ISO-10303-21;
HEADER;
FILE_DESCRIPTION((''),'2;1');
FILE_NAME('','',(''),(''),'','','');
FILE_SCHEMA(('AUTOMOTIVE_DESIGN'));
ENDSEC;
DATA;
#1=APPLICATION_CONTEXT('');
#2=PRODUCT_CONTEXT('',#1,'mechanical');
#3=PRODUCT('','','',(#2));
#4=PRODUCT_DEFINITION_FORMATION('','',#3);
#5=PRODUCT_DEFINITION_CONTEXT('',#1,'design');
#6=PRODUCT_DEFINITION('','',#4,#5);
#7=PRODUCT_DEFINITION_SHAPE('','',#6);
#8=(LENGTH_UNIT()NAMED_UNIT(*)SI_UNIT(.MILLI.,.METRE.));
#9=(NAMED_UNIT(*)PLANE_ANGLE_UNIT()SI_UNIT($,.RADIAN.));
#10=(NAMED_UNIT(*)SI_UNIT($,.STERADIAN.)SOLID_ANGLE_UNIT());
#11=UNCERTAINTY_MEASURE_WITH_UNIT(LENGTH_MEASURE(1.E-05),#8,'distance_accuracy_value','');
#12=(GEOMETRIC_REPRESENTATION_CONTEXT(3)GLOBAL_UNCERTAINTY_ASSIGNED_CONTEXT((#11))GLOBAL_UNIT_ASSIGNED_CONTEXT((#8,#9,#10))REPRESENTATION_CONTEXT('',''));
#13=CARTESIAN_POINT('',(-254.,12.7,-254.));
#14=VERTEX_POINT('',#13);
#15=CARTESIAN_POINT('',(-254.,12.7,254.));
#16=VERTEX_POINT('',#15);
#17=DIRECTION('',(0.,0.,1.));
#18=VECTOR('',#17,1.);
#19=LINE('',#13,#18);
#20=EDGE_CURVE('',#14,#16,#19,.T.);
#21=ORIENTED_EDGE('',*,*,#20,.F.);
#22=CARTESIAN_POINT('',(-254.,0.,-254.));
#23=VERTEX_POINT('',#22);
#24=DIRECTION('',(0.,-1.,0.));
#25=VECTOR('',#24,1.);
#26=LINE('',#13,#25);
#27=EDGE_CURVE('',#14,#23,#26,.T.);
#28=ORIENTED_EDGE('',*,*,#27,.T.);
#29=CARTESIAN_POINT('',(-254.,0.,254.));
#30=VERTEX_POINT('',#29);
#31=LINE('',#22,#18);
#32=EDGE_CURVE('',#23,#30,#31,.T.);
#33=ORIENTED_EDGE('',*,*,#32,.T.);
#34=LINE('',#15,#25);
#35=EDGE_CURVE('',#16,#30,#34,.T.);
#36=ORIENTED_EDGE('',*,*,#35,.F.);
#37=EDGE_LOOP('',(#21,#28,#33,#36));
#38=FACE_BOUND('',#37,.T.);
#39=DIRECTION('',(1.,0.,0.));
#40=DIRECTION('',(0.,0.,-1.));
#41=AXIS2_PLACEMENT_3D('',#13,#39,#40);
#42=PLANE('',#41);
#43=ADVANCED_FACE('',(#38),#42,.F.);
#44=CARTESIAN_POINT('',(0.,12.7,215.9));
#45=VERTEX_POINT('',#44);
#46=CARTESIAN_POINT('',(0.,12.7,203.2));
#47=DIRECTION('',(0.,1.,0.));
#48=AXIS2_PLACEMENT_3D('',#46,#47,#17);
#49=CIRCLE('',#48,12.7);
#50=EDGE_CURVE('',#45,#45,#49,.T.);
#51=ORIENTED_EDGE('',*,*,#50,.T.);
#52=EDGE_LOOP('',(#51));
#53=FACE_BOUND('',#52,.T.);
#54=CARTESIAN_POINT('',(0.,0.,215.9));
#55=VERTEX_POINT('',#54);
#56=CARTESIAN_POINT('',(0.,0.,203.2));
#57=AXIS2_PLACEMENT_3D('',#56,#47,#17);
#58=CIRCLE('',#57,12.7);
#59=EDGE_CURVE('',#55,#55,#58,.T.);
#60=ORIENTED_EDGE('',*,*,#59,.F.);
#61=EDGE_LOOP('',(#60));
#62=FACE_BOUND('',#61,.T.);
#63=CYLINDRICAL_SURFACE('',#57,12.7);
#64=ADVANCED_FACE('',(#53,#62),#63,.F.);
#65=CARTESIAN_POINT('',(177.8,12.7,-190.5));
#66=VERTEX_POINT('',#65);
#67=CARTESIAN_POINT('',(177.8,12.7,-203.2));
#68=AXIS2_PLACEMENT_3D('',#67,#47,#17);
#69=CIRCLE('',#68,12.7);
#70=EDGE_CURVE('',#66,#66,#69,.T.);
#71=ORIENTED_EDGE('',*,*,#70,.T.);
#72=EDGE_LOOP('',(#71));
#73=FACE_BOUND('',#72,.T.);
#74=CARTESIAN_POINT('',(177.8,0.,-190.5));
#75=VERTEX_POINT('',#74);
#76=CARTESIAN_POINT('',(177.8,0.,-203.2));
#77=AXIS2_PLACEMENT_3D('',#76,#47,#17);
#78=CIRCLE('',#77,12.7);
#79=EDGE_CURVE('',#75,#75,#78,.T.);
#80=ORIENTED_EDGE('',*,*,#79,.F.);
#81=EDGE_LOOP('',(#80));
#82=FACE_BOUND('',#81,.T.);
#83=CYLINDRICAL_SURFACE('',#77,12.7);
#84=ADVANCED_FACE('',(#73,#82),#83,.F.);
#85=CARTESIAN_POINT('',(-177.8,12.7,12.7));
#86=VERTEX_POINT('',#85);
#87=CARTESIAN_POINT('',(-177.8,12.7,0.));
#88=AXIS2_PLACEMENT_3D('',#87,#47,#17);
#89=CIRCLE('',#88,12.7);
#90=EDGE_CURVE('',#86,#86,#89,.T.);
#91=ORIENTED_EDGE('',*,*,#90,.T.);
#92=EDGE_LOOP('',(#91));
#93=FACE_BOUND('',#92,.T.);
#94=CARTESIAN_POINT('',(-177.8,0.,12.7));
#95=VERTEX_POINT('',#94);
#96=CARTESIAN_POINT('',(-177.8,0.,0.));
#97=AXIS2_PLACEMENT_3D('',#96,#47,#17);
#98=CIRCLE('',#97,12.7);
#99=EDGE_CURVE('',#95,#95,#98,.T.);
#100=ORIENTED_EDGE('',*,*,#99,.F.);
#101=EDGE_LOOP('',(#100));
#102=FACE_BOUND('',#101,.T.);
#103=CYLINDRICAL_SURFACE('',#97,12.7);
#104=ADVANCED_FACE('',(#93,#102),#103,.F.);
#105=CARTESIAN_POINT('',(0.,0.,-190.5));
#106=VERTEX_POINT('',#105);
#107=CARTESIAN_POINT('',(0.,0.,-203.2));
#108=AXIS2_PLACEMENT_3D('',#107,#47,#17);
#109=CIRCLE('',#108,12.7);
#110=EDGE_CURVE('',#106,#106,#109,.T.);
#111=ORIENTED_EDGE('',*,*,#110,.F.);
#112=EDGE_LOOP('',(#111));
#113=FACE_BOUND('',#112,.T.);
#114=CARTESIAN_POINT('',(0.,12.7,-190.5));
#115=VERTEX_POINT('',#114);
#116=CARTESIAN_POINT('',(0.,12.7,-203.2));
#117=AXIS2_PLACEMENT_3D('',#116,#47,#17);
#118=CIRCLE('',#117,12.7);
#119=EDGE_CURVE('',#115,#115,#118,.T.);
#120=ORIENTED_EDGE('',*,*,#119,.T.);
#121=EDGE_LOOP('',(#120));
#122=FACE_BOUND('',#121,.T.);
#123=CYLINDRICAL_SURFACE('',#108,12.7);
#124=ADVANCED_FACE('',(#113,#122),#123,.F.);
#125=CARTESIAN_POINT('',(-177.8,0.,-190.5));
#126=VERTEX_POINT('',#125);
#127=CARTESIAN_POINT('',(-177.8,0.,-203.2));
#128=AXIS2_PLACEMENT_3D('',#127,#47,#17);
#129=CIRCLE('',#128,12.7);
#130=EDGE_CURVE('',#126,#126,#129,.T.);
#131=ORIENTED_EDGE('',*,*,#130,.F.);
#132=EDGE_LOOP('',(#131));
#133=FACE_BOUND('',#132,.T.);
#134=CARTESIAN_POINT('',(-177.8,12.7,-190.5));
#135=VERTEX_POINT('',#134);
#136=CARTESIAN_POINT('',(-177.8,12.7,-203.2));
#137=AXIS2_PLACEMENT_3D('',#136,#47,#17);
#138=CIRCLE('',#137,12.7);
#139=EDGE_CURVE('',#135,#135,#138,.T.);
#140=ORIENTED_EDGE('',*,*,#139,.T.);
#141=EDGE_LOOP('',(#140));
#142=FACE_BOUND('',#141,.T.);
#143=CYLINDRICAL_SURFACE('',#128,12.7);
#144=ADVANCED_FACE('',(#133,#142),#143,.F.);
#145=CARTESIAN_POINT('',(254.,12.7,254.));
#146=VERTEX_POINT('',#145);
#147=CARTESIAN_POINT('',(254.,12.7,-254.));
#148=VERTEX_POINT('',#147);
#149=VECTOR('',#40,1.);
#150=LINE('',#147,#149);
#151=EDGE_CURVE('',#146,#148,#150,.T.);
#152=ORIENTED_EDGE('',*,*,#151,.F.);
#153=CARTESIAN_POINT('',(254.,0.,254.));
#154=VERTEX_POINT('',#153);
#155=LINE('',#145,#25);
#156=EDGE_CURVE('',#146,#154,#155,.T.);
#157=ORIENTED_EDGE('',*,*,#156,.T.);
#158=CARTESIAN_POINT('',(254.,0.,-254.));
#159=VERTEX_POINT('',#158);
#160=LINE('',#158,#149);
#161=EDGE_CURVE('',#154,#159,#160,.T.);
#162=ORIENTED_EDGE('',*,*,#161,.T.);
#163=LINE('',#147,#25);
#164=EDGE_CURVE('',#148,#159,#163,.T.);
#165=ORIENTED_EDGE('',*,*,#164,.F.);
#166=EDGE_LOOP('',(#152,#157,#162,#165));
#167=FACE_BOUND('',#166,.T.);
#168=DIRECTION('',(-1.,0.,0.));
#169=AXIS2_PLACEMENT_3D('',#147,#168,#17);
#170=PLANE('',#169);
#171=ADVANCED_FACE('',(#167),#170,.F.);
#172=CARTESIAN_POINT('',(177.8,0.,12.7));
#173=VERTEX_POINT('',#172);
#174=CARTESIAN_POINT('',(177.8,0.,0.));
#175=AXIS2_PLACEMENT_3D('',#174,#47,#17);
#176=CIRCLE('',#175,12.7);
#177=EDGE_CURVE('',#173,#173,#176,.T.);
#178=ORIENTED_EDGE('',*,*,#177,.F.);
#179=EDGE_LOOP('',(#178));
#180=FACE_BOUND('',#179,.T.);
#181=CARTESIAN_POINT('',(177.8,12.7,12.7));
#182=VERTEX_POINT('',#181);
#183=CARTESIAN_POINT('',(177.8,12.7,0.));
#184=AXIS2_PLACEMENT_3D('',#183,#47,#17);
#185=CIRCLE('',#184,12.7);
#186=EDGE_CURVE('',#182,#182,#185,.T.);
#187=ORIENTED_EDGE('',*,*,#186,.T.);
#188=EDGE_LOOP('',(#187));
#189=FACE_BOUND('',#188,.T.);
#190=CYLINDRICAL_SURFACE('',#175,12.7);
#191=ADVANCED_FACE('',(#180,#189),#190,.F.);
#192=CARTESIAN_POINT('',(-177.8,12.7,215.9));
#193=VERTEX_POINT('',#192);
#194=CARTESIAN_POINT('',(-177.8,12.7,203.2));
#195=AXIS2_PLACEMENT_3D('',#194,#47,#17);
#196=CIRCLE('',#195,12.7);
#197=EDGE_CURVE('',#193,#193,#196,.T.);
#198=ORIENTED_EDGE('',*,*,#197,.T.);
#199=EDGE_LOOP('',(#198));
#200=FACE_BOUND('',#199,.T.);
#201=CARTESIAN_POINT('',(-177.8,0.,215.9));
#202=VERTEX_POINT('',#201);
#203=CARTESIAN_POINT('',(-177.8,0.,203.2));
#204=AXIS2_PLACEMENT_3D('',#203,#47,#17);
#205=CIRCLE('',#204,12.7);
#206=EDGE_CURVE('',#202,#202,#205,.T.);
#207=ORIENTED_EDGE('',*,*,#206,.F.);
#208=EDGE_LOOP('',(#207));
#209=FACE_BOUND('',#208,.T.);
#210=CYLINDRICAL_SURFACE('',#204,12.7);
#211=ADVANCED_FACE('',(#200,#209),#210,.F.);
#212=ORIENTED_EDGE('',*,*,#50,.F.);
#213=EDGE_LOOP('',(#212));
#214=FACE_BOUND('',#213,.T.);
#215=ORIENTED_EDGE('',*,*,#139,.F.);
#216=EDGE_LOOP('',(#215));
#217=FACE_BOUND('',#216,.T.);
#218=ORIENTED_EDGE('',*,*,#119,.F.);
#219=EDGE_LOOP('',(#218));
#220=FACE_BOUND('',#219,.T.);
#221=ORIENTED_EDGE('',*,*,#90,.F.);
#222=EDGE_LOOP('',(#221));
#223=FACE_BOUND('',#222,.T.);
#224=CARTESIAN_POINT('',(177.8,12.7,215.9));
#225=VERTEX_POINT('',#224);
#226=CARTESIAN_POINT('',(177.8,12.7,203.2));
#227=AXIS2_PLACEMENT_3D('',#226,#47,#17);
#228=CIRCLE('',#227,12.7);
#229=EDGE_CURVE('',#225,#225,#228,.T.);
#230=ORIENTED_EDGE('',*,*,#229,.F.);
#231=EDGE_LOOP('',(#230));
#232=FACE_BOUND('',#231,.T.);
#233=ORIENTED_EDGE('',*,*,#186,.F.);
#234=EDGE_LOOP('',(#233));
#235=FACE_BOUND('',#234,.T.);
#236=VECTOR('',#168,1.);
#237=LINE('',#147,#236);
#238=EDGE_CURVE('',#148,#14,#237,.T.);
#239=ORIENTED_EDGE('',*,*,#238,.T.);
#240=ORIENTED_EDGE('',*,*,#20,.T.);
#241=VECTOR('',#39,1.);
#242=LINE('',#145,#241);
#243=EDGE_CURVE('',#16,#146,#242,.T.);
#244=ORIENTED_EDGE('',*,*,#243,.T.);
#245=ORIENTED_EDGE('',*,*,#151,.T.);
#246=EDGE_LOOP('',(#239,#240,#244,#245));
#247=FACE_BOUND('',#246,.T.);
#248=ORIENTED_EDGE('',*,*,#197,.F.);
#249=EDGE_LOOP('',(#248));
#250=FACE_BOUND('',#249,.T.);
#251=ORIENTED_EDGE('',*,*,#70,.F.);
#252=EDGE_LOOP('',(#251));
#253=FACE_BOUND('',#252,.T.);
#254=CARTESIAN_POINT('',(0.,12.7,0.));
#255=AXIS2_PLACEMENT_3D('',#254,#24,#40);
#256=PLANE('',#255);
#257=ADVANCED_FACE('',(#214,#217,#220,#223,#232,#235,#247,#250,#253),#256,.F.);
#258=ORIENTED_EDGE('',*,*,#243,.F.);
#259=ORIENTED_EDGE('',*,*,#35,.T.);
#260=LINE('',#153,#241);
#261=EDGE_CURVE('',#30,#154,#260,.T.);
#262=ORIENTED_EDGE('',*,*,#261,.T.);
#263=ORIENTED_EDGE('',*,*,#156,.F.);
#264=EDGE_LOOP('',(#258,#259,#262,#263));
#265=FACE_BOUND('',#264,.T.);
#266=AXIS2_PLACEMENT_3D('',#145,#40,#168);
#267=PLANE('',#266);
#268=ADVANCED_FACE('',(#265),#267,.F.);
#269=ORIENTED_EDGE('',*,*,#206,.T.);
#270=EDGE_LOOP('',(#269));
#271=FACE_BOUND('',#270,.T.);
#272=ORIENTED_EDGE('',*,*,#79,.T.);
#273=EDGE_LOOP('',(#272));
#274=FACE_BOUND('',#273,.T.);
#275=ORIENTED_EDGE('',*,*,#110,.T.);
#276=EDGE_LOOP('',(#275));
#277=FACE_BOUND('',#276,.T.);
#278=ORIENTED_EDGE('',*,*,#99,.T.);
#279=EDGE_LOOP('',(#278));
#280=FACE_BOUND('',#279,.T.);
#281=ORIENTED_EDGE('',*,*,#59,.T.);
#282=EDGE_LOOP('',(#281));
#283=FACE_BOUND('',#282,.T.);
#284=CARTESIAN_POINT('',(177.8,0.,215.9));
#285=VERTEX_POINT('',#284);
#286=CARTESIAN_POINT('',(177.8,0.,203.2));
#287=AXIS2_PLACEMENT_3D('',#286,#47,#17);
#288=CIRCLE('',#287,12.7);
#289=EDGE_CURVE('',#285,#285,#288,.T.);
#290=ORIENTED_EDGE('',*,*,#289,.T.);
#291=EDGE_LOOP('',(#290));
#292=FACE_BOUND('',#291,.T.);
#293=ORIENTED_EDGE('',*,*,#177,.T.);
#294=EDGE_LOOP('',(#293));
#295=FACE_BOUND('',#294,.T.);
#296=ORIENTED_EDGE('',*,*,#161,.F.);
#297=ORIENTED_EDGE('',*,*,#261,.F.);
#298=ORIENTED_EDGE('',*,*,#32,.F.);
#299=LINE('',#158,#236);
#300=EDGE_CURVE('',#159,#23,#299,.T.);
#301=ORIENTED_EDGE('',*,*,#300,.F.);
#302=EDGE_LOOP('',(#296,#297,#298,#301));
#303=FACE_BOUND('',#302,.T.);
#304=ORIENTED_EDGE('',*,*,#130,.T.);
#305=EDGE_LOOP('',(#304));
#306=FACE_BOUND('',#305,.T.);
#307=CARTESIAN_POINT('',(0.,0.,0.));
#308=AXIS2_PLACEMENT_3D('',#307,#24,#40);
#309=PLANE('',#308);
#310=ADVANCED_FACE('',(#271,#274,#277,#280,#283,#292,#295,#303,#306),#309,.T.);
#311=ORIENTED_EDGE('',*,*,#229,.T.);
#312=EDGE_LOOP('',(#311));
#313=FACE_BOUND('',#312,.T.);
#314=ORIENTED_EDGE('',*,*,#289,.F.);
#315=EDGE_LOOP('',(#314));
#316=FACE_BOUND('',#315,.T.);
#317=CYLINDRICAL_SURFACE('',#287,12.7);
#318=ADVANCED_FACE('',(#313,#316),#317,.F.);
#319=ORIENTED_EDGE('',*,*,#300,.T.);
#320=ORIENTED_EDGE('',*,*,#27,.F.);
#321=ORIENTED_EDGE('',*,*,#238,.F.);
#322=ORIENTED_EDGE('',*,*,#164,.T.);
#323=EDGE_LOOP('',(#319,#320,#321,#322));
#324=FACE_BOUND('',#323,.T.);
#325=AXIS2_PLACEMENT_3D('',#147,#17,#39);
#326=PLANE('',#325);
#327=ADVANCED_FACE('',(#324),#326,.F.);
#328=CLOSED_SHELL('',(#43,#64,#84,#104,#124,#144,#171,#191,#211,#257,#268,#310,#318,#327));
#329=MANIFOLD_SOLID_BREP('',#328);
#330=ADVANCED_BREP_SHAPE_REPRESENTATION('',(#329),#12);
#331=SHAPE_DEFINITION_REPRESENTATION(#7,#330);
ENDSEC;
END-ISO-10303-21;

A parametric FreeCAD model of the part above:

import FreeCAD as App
import Part
import Sketcher
Q = App.Units.Quantity

doc = App.newDocument("Part")
params = doc.addObject("Spreadsheet::Sheet", "Params")
for row, (alias, value) in enumerate([
    ("sketch1_width", "20 in"),
    ("pad1_length", "0.5 in"),
    ("sketch2_diameter", "1 in"),
], start=1):
    params.set(f"A{row}", alias)
    params.set(f"B{row}", "=" + value)
    params.setAlias(f"B{row}", alias)

body = doc.addObject("PartDesign::Body", "Body")

# Sketch on XZ plane
sketch1 = body.newObject("Sketcher::SketchObject", "Sketch")
sketch1.AttachmentSupport = (doc.getObject("XZ_Plane"), [""])
sketch1.MapMode = "FlatFace"
sketch1.addGeometry(Part.LineSegment(App.Vector(-254, -254, 0), App.Vector(-254, 254, 0)), False)
sketch1.addGeometry(Part.LineSegment(App.Vector(-254, 254, 0), App.Vector(254, 254, 0)), False)
sketch1.addGeometry(Part.LineSegment(App.Vector(254, 254, 0), App.Vector(254, -254, 0)), False)
sketch1.addGeometry(Part.LineSegment(App.Vector(254, -254, 0), App.Vector(-254, -254, 0)), False)
sketch1.addConstraint(Sketcher.Constraint("Coincident", 0, 2, 1, 1))
sketch1.addConstraint(Sketcher.Constraint("Coincident", 1, 2, 2, 1))
sketch1.addConstraint(Sketcher.Constraint("Coincident", 2, 2, 3, 1))
sketch1.addConstraint(Sketcher.Constraint("Coincident", 3, 2, 0, 1))
sketch1.addConstraint(Sketcher.Constraint("Vertical", 0))
sketch1.addConstraint(Sketcher.Constraint("Horizontal", 1))
sketch1.addConstraint(Sketcher.Constraint("Vertical", 2))
sketch1.addConstraint(Sketcher.Constraint("Horizontal", 3))
sketch1.addConstraint(Sketcher.Constraint("Symmetric", 0, 2, 2, 2, -1, 1))
sketch1.addConstraint(Sketcher.Constraint("Equal", 3, 0))
sketch1.addConstraint(Sketcher.Constraint("DistanceX", 1, 1, 1, 2, Q("20 in")))
sketch1.setExpression("Constraints[10]", "Params.sketch1_width")
pad1 = body.newObject("PartDesign::Pad", "Pad")
pad1.Profile = sketch1
pad1.setExpression("Length", "Params.pad1_length")
pad1.Reversed = True

# Sketch on XZ plane
sketch2 = body.newObject("Sketcher::SketchObject", "Sketch001")
sketch2.AttachmentSupport = (doc.getObject("XZ_Plane"), [""])
sketch2.MapMode = "FlatFace"
sketch2.AttachmentOffset = App.Placement(App.Vector(0, 0, -0.5 * 25.4), App.Rotation())
sketch2.addGeometry(Part.Circle(App.Vector(-178, -203, 0), App.Vector(0, 0, 1), 13), False)
sketch2.addGeometry(Part.Circle(App.Vector(0, -203, 0), App.Vector(0, 0, 1), 13), False)
sketch2.addGeometry(Part.Circle(App.Vector(178, -203, 0), App.Vector(0, 0, 1), 13), False)
sketch2.addGeometry(Part.Circle(App.Vector(-178, 0, 0), App.Vector(0, 0, 1), 13), False)
sketch2.addGeometry(Part.Circle(App.Vector(178, 0, 0), App.Vector(0, 0, 1), 13), False)
sketch2.addGeometry(Part.Circle(App.Vector(-178, 203, 0), App.Vector(0, 0, 1), 13), False)
sketch2.addGeometry(Part.Circle(App.Vector(0, 203, 0), App.Vector(0, 0, 1), 13), False)
sketch2.addGeometry(Part.Circle(App.Vector(178, 203, 0), App.Vector(0, 0, 1), 13), False)
sketch2.addConstraint(Sketcher.Constraint("Equal", 0, 1))
sketch2.addConstraint(Sketcher.Constraint("Equal", 1, 2))
sketch2.addConstraint(Sketcher.Constraint("Equal", 2, 3))
sketch2.addConstraint(Sketcher.Constraint("Equal", 3, 4))
sketch2.addConstraint(Sketcher.Constraint("Equal", 4, 5))
sketch2.addConstraint(Sketcher.Constraint("Equal", 5, 6))
sketch2.addConstraint(Sketcher.Constraint("Equal", 6, 7))
sketch2.addConstraint(Sketcher.Constraint("Symmetric", 3, 3, 4, 3, -1, 1))
sketch2.addConstraint(Sketcher.Constraint("Symmetric", 2, 3, 5, 3, -1, 1))
sketch2.addConstraint(Sketcher.Constraint("Symmetric", 1, 3, 6, 3, -1, 1))
sketch2.addConstraint(Sketcher.Constraint("Symmetric", 0, 3, 7, 3, -1, 1))
sketch2.addConstraint(Sketcher.Constraint("Symmetric", 0, 3, 2, 3, -2))
sketch2.addConstraint(Sketcher.Constraint("PointOnObject", 1, 3, -2))
sketch2.addConstraint(Sketcher.Constraint("PointOnObject", 3, 3, -1))
sketch2.addConstraint(Sketcher.Constraint("Horizontal", 0, 3, 1, 3))
sketch2.addConstraint(Sketcher.Constraint("Vertical", 0, 3, 3, 3))
sketch2.addConstraint(Sketcher.Constraint("Diameter", 0, Q("1 in")))
sketch2.addConstraint(Sketcher.Constraint("DistanceX", 0, 3, -1, 1, Q("7 in")))
sketch2.addConstraint(Sketcher.Constraint("DistanceY", 0, 3, -1, 1, Q("8 in")))
sketch2.setExpression("Constraints[16]", "Params.sketch2_diameter")
pocket1 = body.newObject("PartDesign::Pocket", "Pocket")
pocket1.Profile = sketch2
pocket1.Type = "ThroughAll"
pocket1.Reversed = True

doc.recompute()
